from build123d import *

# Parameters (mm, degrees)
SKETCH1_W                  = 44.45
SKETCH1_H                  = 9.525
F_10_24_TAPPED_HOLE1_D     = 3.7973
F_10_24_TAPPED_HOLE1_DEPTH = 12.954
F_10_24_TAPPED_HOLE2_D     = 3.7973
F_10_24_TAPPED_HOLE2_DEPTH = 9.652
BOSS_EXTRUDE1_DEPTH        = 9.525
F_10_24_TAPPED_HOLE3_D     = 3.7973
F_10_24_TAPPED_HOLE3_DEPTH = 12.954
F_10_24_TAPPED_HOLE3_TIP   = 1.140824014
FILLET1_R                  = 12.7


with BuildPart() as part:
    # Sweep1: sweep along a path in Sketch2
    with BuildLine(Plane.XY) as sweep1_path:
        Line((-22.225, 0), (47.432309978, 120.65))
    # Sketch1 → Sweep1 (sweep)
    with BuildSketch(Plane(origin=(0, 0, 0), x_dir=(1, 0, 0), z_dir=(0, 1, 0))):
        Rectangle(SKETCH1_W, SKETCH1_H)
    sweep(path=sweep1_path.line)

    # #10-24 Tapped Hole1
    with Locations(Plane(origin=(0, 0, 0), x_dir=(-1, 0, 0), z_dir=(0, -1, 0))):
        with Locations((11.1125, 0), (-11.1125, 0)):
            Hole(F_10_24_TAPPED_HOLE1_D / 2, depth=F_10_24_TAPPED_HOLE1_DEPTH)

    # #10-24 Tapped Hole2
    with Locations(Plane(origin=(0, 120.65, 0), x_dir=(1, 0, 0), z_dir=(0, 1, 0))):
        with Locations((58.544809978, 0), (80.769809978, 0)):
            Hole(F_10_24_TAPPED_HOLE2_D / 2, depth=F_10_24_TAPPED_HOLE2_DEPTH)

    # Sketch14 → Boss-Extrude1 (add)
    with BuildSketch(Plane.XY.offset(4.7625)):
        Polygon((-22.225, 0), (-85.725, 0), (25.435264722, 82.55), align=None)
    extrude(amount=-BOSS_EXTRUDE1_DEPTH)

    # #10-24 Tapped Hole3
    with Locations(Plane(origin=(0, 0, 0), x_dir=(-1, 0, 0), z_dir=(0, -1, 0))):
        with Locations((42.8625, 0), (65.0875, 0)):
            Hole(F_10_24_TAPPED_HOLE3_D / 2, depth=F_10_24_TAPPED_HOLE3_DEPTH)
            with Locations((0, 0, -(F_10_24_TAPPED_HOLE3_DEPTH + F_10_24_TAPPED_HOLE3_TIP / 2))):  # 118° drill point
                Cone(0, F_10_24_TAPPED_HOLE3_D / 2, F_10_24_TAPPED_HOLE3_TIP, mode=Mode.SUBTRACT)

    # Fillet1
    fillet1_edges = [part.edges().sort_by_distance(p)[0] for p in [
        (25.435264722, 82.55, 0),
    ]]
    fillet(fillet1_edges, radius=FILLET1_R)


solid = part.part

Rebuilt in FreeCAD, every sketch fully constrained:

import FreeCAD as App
import Part
import Sketcher
Q = App.Units.Quantity


def edges_at(feature, points):
    """Names of the edges that pass closest to the given points."""
    edges = feature.Shape.Edges
    near = lambda p: min(range(len(edges)), key=lambda i: edges[i].distToShape(Part.Vertex(*p))[0])
    return sorted({f"Edge{near(p) + 1}" for p in points})

doc = App.newDocument("Part")
body = doc.addObject("PartDesign::Body", "Body")

sketch1 = body.newObject("Sketcher::SketchObject", "Sketch")
sketch1.AttachmentSupport = (doc.getObject("XZ_Plane"), [""])
sketch1.MapMode = "FlatFace"
sketch1.addGeometry([
    Part.LineSegment(App.Vector(-22, -5, 0), App.Vector(-22, 5, 0)),
    Part.LineSegment(App.Vector(-22, 5, 0), App.Vector(22, 5, 0)),
    Part.LineSegment(App.Vector(22, 5, 0), App.Vector(22, -5, 0)),
    Part.LineSegment(App.Vector(22, -5, 0), App.Vector(-22, -5, 0)),
], False)
sketch1.addConstraint([
    Sketcher.Constraint("Coincident", 0, 2, 1, 1),
    Sketcher.Constraint("Coincident", 1, 2, 2, 1),
    Sketcher.Constraint("Coincident", 2, 2, 3, 1),
    Sketcher.Constraint("Coincident", 3, 2, 0, 1),
    Sketcher.Constraint("Vertical", 0),
    Sketcher.Constraint("Horizontal", 1),
    Sketcher.Constraint("Vertical", 2),
    Sketcher.Constraint("Horizontal", 3),
    Sketcher.Constraint("Symmetric", 0, 2, 2, 2, -1, 1),
    Sketcher.Constraint("DistanceX", 1, 1, 1, 2, Q("1.75 in")),
    Sketcher.Constraint("DistanceY", 0, 1, 0, 2, Q("0.375 in")),
])

sketch2 = body.newObject("Sketcher::SketchObject", "Sketch001")
sketch2.Placement = App.Placement(App.Vector(-16.66875, 9.623707, 0), App.Rotation(App.Vector(0.5, 0.866025404, 0), App.Vector(0, 0, 1), App.Vector(0.866025404, -0.5, 0), "ZXY"))
sketch2.addGeometry(Part.LineSegment(App.Vector(-11, 0, 0), App.Vector(128, 0, 0)), False)
sketch2.addConstraint([
    Sketcher.Constraint("Horizontal", 0),
    Sketcher.Constraint("PointOnObject", 0, 1, -1),
    Sketcher.Constraint("DistanceX", 0, 1, -1, 1, Q("0.4375 in")),
    Sketcher.Constraint("DistanceX", 0, 1, 0, 2, 139.31462),
])
doc.recompute()

additivepipe = body.newObject("PartDesign::AdditivePipe", "AdditivePipe")
additivepipe.Profile = sketch1
additivepipe.Spine = (sketch2, ["Edge1"])

sketch3 = body.newObject("Sketcher::SketchObject", "Sketch002")
sketch3.AttachmentSupport = (doc.getObject("XZ_Plane"), [""])
sketch3.MapMode = "FlatFace"
sketch3.addGeometry([
    Part.Circle(App.Vector(-11.1, 0, 0), App.Vector(0, 0, 1), 1.9),
    Part.Circle(App.Vector(11.1, 0, 0), App.Vector(0, 0, 1), 1.9),
], False)
sketch3.addConstraint([
    Sketcher.Constraint("Equal", 0, 1),
    Sketcher.Constraint("Symmetric", 0, 3, 1, 3, -1, 1),
    Sketcher.Constraint("PointOnObject", 0, 3, -1),
    Sketcher.Constraint("Diameter", 0, Q("0.1495 in")),
    Sketcher.Constraint("DistanceX", 0, 3, -1, 1, Q("0.4375 in")),
])
doc.recompute()
hole = body.newObject("PartDesign::Hole", "Hole")
hole.Profile = sketch3
hole.ThreadType = "None"
hole.Diameter = Q("0.1495 in")
hole.DepthType = "Dimension"
hole.Depth = Q("0.51 in")
hole.DrillPoint = "Flat"

sketch4 = body.newObject("Sketcher::SketchObject", "Sketch003")
sketch4.AttachmentSupport = (doc.getObject("XZ_Plane"), [""])
sketch4.MapMode = "FlatFace"
sketch4.AttachmentOffset = App.Placement(App.Vector(0, 0, -4.75 * 25.4), App.Rotation())
sketch4.addGeometry([
    Part.Circle(App.Vector(58.5, 0, 0), App.Vector(0, 0, 1), 1.9),
    Part.Circle(App.Vector(80.8, 0, 0), App.Vector(0, 0, 1), 1.9),
], False)
sketch4.addConstraint([
    Sketcher.Constraint("Equal", 0, 1),
    Sketcher.Constraint("PointOnObject", 0, 3, -1),
    Sketcher.Constraint("PointOnObject", 1, 3, -1),
    Sketcher.Constraint("Diameter", 0, Q("0.1495 in")),
    Sketcher.Constraint("DistanceX", 0, 3, 1, 3, Q("0.875 in")),
    Sketcher.Constraint("DistanceX", -1, 1, 0, 3, 58.54481),
])
doc.recompute()
hole2 = body.newObject("PartDesign::Hole", "Hole001")
hole2.Profile = sketch4
hole2.ThreadType = "None"
hole2.Diameter = Q("0.1495 in")
hole2.DepthType = "Dimension"
hole2.Depth = Q("0.38 in")
hole2.DrillPoint = "Flat"
hole2.Reversed = True

sketch5 = body.newObject("Sketcher::SketchObject", "Sketch004")
sketch5.AttachmentSupport = (doc.getObject("XY_Plane"), [""])
sketch5.MapMode = "FlatFace"
sketch5.AttachmentOffset = App.Placement(App.Vector(0, 0, 0.1875 * 25.4), App.Rotation())
sketch5.addGeometry([
    Part.LineSegment(App.Vector(-86, 0, 0), App.Vector(-22, 0, 0)),
    Part.LineSegment(App.Vector(-22, 0, 0), App.Vector(25, 83, 0)),
    Part.LineSegment(App.Vector(25, 83, 0), App.Vector(-86, 0, 0)),
], False)
sketch5.addConstraint([
    Sketcher.Constraint("Coincident", 0, 2, 1, 1),
    Sketcher.Constraint("Coincident", 1, 2, 2, 1),
    Sketcher.Constraint("Coincident", 2, 2, 0, 1),
    Sketcher.Constraint("Horizontal", 0),
    Sketcher.Constraint("PointOnObject", 0, 2, -1),
    Sketcher.Constraint("DistanceX", 0, 1, 0, 2, Q("2.5 in")),
    Sketcher.Constraint("Angle", 1, Q("60 deg")),
    Sketcher.Constraint("DistanceY", -1, 1, 1, 2, Q("3.25 in")),
    Sketcher.Constraint("DistanceX", 0, 2, -1, 1, Q("0.875 in")),
])
pad1 = body.newObject("PartDesign::Pad", "Pad")
pad1.Profile = sketch5
pad1.Length = Q("0.375 in")
pad1.Reversed = True

sketch6 = body.newObject("Sketcher::SketchObject", "Sketch005")
sketch6.AttachmentSupport = (doc.getObject("XZ_Plane"), [""])
sketch6.MapMode = "FlatFace"
sketch6.addGeometry([
    Part.Circle(App.Vector(-42.9, 0, 0), App.Vector(0, 0, 1), 1.9),
    Part.Circle(App.Vector(-65.1, 0, 0), App.Vector(0, 0, 1), 1.9),
], False)
sketch6.addConstraint([
    Sketcher.Constraint("Equal", 0, 1),
    Sketcher.Constraint("PointOnObject", 0, 3, -1),
    Sketcher.Constraint("PointOnObject", 1, 3, -1),
    Sketcher.Constraint("Diameter", 0, Q("0.1495 in")),
    Sketcher.Constraint("DistanceX", 0, 3, -1, 1, Q("1.6875 in")),
    Sketcher.Constraint("DistanceX", 1, 3, -1, 1, Q("2.5625 in")),
])
doc.recompute()
hole3 = body.newObject("PartDesign::Hole", "Hole002")
hole3.Profile = sketch6
hole3.ThreadType = "None"
hole3.Diameter = Q("0.1495 in")
hole3.DepthType = "Dimension"
hole3.Depth = Q("0.51 in")
hole3.DrillPoint = "Angled"
hole3.DrillPointAngle = 118
doc.recompute()

fillet = body.newObject("PartDesign::Fillet", "Fillet")
fillet.Base = (hole3, edges_at(hole3, [(25.435, 82.55, 0)]))
fillet.Radius = Q("0.5 in")

doc.recompute()
